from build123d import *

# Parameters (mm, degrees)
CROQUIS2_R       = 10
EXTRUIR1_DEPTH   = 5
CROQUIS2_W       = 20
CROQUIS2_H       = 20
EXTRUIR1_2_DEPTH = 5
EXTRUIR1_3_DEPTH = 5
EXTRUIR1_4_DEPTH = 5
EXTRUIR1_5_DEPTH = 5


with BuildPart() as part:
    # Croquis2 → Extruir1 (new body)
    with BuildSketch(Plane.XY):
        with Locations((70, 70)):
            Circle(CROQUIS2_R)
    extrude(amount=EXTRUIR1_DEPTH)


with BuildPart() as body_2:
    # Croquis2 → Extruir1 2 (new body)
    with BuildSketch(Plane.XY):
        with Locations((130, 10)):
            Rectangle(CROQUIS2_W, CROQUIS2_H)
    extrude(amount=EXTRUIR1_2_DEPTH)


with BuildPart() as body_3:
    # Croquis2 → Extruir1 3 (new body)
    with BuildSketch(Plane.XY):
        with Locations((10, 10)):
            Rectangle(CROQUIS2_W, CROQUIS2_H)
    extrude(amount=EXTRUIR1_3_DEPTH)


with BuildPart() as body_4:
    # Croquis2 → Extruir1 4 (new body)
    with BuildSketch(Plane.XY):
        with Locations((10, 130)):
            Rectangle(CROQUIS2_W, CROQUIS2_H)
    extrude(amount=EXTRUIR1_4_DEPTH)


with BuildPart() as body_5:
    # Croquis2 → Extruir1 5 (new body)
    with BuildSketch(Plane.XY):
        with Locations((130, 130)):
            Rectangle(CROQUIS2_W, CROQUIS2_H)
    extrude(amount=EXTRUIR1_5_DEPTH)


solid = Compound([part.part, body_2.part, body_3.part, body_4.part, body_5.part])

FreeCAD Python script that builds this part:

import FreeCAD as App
import Part
import Sketcher
from FreeCAD import Vector

doc = App.newDocument("Part")
body = doc.addObject("PartDesign::Body", "Body")

sketch1 = body.newObject("Sketcher::SketchObject", "Sketch")
sketch1.AttachmentSupport = (doc.getObject("XY_Plane"), [""])
sketch1.MapMode = "FlatFace"
sketch1.addGeometry(Part.Circle(Vector(70, 70, 0), Vector(0, 0, 1), 10), False)
sketch1.addConstraint([
    Sketcher.Constraint("Diameter", 0, 20.0),
    Sketcher.Constraint("DistanceX", -1, 1, 0, 3, 70.0),
    Sketcher.Constraint("DistanceY", -1, 1, 0, 3, 70.0),
])
pad1 = body.newObject("PartDesign::Pad", "Pad")
pad1.Profile = sketch1
pad1.Length = 5
body2 = doc.addObject("PartDesign::Body", "Body001")

sketch2 = body2.newObject("Sketcher::SketchObject", "Sketch001")
sketch2.AttachmentSupport = (doc.getObject("XY_Plane001"), [""])
sketch2.MapMode = "FlatFace"
sketch2.addGeometry([
    Part.LineSegment(Vector(120, 20, 0), Vector(120, 0, 0)),
    Part.LineSegment(Vector(120, 0, 0), Vector(140, 0, 0)),
    Part.LineSegment(Vector(140, 0, 0), Vector(140, 20, 0)),
    Part.LineSegment(Vector(140, 20, 0), Vector(120, 20, 0)),
], False)
sketch2.addConstraint([
    Sketcher.Constraint("Coincident", 0, 2, 1, 1),
    Sketcher.Constraint("Coincident", 1, 2, 2, 1),
    Sketcher.Constraint("Coincident", 2, 2, 3, 1),
    Sketcher.Constraint("Coincident", 3, 2, 0, 1),
    Sketcher.Constraint("Vertical", 0),
    Sketcher.Constraint("Horizontal", 1),
    Sketcher.Constraint("Vertical", 2),
    Sketcher.Constraint("Horizontal", 3),
    Sketcher.Constraint("PointOnObject", 0, 2, -1),
    Sketcher.Constraint("Equal", 3, 0),
    Sketcher.Constraint("DistanceX", 1, 1, 1, 2, 20.0),
    Sketcher.Constraint("DistanceX", -1, 1, 0, 2, 120.0),
])
pad2 = body2.newObject("PartDesign::Pad", "Pad001")
pad2.Profile = sketch2
pad2.Length = 5
body3 = doc.addObject("PartDesign::Body", "Body002")

sketch3 = body3.newObject("Sketcher::SketchObject", "Sketch002")
sketch3.AttachmentSupport = (doc.getObject("XY_Plane002"), [""])
sketch3.MapMode = "FlatFace"
sketch3.addGeometry([
    Part.LineSegment(Vector(0, 20, 0), Vector(0, 0, 0)),
    Part.LineSegment(Vector(0, 0, 0), Vector(20, 0, 0)),
    Part.LineSegment(Vector(20, 0, 0), Vector(20, 20, 0)),
    Part.LineSegment(Vector(20, 20, 0), Vector(0, 20, 0)),
], False)
sketch3.addConstraint([
    Sketcher.Constraint("Coincident", 0, 2, 1, 1),
    Sketcher.Constraint("Coincident", 1, 2, 2, 1),
    Sketcher.Constraint("Coincident", 2, 2, 3, 1),
    Sketcher.Constraint("Coincident", 3, 2, 0, 1),
    Sketcher.Constraint("Vertical", 0),
    Sketcher.Constraint("Horizontal", 1),
    Sketcher.Constraint("Vertical", 2),
    Sketcher.Constraint("Horizontal", 3),
    Sketcher.Constraint("Coincident", 0, 2, -1, 1),
    Sketcher.Constraint("Equal", 3, 0),
    Sketcher.Constraint("DistanceX", 1, 1, 1, 2, 20.0),
])
pad3 = body3.newObject("PartDesign::Pad", "Pad002")
pad3.Profile = sketch3
pad3.Length = 5
body4 = doc.addObject("PartDesign::Body", "Body003")

sketch4 = body4.newObject("Sketcher::SketchObject", "Sketch003")
sketch4.AttachmentSupport = (doc.getObject("XY_Plane003"), [""])
sketch4.MapMode = "FlatFace"
sketch4.addGeometry([
    Part.LineSegment(Vector(0, 140, 0), Vector(0, 120, 0)),
    Part.LineSegment(Vector(0, 120, 0), Vector(20, 120, 0)),
    Part.LineSegment(Vector(20, 120, 0), Vector(20, 140, 0)),
    Part.LineSegment(Vector(20, 140, 0), Vector(0, 140, 0)),
], False)
sketch4.addConstraint([
    Sketcher.Constraint("Coincident", 0, 2, 1, 1),
    Sketcher.Constraint("Coincident", 1, 2, 2, 1),
    Sketcher.Constraint("Coincident", 2, 2, 3, 1),
    Sketcher.Constraint("Coincident", 3, 2, 0, 1),
    Sketcher.Constraint("Vertical", 0),
    Sketcher.Constraint("Horizontal", 1),
    Sketcher.Constraint("Vertical", 2),
    Sketcher.Constraint("Horizontal", 3),
    Sketcher.Constraint("PointOnObject", 0, 2, -2),
    Sketcher.Constraint("Equal", 3, 0),
    Sketcher.Constraint("DistanceX", 1, 1, 1, 2, 20.0),
    Sketcher.Constraint("DistanceY", -1, 1, 0, 2, 120.0),
])
pad4 = body4.newObject("PartDesign::Pad", "Pad003")
pad4.Profile = sketch4
pad4.Length = 5
body5 = doc.addObject("PartDesign::Body", "Body004")

sketch5 = body5.newObject("Sketcher::SketchObject", "Sketch004")
sketch5.AttachmentSupport = (doc.getObject("XY_Plane004"), [""])
sketch5.MapMode = "FlatFace"
sketch5.addGeometry([
    Part.LineSegment(Vector(120, 140, 0), Vector(120, 120, 0)),
    Part.LineSegment(Vector(120, 120, 0), Vector(140, 120, 0)),
    Part.LineSegment(Vector(140, 120, 0), Vector(140, 140, 0)),
    Part.LineSegment(Vector(140, 140, 0), Vector(120, 140, 0)),
], False)
sketch5.addConstraint([
    Sketcher.Constraint("Coincident", 0, 2, 1, 1),
    Sketcher.Constraint("Coincident", 1, 2, 2, 1),
    Sketcher.Constraint("Coincident", 2, 2, 3, 1),
    Sketcher.Constraint("Coincident", 3, 2, 0, 1),
    Sketcher.Constraint("Vertical", 0),
    Sketcher.Constraint("Horizontal", 1),
    Sketcher.Constraint("Vertical", 2),
    Sketcher.Constraint("Horizontal", 3),
    Sketcher.Constraint("Equal", 3, 0),
    Sketcher.Constraint("DistanceX", 1, 1, 1, 2, 20.0),
    Sketcher.Constraint("DistanceX", -1, 1, 0, 2, 120.0),
    Sketcher.Constraint("DistanceY", -1, 1, 0, 2, 120.0),
])
pad5 = body5.newObject("PartDesign::Pad", "Pad004")
pad5.Profile = sketch5
pad5.Length = 5

doc.recompute()
